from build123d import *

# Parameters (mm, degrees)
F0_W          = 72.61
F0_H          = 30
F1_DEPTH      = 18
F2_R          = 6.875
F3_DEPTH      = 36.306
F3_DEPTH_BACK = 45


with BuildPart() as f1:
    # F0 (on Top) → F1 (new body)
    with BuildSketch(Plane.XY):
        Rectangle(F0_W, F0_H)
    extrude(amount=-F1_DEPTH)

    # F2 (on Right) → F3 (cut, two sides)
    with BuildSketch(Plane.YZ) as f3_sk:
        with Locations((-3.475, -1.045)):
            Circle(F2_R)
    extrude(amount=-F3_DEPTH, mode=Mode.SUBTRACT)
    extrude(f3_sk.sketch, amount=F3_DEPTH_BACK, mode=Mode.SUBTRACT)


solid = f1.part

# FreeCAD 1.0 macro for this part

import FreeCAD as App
import Part
import Sketcher

V = App.Vector
Q = App.Units.Quantity


def add_polygon(sketch, points):
    """Adds a closed chain of lines whose ends are joined by coincident constraints."""
    first, n = sketch.GeometryCount, len(points)
    for a, b in zip(points, points[1:] + points[:1]):
        sketch.addGeometry(Part.LineSegment(App.Vector(*a, 0), App.Vector(*b, 0)), False)
    for i in range(n):
        sketch.addConstraint(Sketcher.Constraint("Coincident", first + i, 2, first + (i + 1) % n, 1))

doc = App.newDocument("Part")
body = doc.addObject("PartDesign::Body", "Body")

# Sketch on XY plane
sketch1 = doc.addObject("Sketcher::SketchObject", "Sketch")
body.addObject(sketch1)
sketch1.AttachmentSupport = (doc.XY_Plane, [""])
sketch1.MapMode = "FlatFace"
add_polygon(sketch1, [(-36, 15), (-36, -15), (36, -15), (36, 15)])  # lines 0-3
sketch1.addConstraint(Sketcher.Constraint("Vertical", 0))
sketch1.addConstraint(Sketcher.Constraint("Horizontal", 1))
sketch1.addConstraint(Sketcher.Constraint("Vertical", 2))
sketch1.addConstraint(Sketcher.Constraint("Horizontal", 3))
sketch1.addConstraint(Sketcher.Constraint("Symmetric", 0, 2, 2, 2, -1, 1))
sketch1.addConstraint(Sketcher.Constraint("DistanceY", 0, 2, 0, 1, Q("30 mm")))
sketch1.addConstraint(Sketcher.Constraint("DistanceX", 1, 1, 1, 2, Q("72.61 mm")))
pad1 = doc.addObject("PartDesign::Pad", "Pad")
body.addObject(pad1)
pad1.Profile = sketch1
pad1.Length = 18
pad1.Reversed = True

# Sketch on YZ plane
sketch2 = doc.addObject("Sketcher::SketchObject", "Sketch001")
body.addObject(sketch2)
sketch2.AttachmentSupport = (doc.YZ_Plane, [""])
sketch2.MapMode = "FlatFace"
sketch2.addGeometry(Part.Circle(V(-3, -1, 0), V(0, 0, 1), 7), False)
sketch2.addConstraint(Sketcher.Constraint("Diameter", 0, Q("13.75 mm")))
sketch2.addConstraint(Sketcher.Constraint("DistanceX", 0, 3, -1, 1, Q("3.475 mm")))
sketch2.addConstraint(Sketcher.Constraint("DistanceY", 0, 3, -1, 1, Q("1.045 mm")))
pocket1 = doc.addObject("PartDesign::Pocket", "Pocket")
body.addObject(pocket1)
pocket1.Profile = sketch2
pocket1.Type = "ThroughAll"
pocket1.Midplane = True

doc.recompute()
